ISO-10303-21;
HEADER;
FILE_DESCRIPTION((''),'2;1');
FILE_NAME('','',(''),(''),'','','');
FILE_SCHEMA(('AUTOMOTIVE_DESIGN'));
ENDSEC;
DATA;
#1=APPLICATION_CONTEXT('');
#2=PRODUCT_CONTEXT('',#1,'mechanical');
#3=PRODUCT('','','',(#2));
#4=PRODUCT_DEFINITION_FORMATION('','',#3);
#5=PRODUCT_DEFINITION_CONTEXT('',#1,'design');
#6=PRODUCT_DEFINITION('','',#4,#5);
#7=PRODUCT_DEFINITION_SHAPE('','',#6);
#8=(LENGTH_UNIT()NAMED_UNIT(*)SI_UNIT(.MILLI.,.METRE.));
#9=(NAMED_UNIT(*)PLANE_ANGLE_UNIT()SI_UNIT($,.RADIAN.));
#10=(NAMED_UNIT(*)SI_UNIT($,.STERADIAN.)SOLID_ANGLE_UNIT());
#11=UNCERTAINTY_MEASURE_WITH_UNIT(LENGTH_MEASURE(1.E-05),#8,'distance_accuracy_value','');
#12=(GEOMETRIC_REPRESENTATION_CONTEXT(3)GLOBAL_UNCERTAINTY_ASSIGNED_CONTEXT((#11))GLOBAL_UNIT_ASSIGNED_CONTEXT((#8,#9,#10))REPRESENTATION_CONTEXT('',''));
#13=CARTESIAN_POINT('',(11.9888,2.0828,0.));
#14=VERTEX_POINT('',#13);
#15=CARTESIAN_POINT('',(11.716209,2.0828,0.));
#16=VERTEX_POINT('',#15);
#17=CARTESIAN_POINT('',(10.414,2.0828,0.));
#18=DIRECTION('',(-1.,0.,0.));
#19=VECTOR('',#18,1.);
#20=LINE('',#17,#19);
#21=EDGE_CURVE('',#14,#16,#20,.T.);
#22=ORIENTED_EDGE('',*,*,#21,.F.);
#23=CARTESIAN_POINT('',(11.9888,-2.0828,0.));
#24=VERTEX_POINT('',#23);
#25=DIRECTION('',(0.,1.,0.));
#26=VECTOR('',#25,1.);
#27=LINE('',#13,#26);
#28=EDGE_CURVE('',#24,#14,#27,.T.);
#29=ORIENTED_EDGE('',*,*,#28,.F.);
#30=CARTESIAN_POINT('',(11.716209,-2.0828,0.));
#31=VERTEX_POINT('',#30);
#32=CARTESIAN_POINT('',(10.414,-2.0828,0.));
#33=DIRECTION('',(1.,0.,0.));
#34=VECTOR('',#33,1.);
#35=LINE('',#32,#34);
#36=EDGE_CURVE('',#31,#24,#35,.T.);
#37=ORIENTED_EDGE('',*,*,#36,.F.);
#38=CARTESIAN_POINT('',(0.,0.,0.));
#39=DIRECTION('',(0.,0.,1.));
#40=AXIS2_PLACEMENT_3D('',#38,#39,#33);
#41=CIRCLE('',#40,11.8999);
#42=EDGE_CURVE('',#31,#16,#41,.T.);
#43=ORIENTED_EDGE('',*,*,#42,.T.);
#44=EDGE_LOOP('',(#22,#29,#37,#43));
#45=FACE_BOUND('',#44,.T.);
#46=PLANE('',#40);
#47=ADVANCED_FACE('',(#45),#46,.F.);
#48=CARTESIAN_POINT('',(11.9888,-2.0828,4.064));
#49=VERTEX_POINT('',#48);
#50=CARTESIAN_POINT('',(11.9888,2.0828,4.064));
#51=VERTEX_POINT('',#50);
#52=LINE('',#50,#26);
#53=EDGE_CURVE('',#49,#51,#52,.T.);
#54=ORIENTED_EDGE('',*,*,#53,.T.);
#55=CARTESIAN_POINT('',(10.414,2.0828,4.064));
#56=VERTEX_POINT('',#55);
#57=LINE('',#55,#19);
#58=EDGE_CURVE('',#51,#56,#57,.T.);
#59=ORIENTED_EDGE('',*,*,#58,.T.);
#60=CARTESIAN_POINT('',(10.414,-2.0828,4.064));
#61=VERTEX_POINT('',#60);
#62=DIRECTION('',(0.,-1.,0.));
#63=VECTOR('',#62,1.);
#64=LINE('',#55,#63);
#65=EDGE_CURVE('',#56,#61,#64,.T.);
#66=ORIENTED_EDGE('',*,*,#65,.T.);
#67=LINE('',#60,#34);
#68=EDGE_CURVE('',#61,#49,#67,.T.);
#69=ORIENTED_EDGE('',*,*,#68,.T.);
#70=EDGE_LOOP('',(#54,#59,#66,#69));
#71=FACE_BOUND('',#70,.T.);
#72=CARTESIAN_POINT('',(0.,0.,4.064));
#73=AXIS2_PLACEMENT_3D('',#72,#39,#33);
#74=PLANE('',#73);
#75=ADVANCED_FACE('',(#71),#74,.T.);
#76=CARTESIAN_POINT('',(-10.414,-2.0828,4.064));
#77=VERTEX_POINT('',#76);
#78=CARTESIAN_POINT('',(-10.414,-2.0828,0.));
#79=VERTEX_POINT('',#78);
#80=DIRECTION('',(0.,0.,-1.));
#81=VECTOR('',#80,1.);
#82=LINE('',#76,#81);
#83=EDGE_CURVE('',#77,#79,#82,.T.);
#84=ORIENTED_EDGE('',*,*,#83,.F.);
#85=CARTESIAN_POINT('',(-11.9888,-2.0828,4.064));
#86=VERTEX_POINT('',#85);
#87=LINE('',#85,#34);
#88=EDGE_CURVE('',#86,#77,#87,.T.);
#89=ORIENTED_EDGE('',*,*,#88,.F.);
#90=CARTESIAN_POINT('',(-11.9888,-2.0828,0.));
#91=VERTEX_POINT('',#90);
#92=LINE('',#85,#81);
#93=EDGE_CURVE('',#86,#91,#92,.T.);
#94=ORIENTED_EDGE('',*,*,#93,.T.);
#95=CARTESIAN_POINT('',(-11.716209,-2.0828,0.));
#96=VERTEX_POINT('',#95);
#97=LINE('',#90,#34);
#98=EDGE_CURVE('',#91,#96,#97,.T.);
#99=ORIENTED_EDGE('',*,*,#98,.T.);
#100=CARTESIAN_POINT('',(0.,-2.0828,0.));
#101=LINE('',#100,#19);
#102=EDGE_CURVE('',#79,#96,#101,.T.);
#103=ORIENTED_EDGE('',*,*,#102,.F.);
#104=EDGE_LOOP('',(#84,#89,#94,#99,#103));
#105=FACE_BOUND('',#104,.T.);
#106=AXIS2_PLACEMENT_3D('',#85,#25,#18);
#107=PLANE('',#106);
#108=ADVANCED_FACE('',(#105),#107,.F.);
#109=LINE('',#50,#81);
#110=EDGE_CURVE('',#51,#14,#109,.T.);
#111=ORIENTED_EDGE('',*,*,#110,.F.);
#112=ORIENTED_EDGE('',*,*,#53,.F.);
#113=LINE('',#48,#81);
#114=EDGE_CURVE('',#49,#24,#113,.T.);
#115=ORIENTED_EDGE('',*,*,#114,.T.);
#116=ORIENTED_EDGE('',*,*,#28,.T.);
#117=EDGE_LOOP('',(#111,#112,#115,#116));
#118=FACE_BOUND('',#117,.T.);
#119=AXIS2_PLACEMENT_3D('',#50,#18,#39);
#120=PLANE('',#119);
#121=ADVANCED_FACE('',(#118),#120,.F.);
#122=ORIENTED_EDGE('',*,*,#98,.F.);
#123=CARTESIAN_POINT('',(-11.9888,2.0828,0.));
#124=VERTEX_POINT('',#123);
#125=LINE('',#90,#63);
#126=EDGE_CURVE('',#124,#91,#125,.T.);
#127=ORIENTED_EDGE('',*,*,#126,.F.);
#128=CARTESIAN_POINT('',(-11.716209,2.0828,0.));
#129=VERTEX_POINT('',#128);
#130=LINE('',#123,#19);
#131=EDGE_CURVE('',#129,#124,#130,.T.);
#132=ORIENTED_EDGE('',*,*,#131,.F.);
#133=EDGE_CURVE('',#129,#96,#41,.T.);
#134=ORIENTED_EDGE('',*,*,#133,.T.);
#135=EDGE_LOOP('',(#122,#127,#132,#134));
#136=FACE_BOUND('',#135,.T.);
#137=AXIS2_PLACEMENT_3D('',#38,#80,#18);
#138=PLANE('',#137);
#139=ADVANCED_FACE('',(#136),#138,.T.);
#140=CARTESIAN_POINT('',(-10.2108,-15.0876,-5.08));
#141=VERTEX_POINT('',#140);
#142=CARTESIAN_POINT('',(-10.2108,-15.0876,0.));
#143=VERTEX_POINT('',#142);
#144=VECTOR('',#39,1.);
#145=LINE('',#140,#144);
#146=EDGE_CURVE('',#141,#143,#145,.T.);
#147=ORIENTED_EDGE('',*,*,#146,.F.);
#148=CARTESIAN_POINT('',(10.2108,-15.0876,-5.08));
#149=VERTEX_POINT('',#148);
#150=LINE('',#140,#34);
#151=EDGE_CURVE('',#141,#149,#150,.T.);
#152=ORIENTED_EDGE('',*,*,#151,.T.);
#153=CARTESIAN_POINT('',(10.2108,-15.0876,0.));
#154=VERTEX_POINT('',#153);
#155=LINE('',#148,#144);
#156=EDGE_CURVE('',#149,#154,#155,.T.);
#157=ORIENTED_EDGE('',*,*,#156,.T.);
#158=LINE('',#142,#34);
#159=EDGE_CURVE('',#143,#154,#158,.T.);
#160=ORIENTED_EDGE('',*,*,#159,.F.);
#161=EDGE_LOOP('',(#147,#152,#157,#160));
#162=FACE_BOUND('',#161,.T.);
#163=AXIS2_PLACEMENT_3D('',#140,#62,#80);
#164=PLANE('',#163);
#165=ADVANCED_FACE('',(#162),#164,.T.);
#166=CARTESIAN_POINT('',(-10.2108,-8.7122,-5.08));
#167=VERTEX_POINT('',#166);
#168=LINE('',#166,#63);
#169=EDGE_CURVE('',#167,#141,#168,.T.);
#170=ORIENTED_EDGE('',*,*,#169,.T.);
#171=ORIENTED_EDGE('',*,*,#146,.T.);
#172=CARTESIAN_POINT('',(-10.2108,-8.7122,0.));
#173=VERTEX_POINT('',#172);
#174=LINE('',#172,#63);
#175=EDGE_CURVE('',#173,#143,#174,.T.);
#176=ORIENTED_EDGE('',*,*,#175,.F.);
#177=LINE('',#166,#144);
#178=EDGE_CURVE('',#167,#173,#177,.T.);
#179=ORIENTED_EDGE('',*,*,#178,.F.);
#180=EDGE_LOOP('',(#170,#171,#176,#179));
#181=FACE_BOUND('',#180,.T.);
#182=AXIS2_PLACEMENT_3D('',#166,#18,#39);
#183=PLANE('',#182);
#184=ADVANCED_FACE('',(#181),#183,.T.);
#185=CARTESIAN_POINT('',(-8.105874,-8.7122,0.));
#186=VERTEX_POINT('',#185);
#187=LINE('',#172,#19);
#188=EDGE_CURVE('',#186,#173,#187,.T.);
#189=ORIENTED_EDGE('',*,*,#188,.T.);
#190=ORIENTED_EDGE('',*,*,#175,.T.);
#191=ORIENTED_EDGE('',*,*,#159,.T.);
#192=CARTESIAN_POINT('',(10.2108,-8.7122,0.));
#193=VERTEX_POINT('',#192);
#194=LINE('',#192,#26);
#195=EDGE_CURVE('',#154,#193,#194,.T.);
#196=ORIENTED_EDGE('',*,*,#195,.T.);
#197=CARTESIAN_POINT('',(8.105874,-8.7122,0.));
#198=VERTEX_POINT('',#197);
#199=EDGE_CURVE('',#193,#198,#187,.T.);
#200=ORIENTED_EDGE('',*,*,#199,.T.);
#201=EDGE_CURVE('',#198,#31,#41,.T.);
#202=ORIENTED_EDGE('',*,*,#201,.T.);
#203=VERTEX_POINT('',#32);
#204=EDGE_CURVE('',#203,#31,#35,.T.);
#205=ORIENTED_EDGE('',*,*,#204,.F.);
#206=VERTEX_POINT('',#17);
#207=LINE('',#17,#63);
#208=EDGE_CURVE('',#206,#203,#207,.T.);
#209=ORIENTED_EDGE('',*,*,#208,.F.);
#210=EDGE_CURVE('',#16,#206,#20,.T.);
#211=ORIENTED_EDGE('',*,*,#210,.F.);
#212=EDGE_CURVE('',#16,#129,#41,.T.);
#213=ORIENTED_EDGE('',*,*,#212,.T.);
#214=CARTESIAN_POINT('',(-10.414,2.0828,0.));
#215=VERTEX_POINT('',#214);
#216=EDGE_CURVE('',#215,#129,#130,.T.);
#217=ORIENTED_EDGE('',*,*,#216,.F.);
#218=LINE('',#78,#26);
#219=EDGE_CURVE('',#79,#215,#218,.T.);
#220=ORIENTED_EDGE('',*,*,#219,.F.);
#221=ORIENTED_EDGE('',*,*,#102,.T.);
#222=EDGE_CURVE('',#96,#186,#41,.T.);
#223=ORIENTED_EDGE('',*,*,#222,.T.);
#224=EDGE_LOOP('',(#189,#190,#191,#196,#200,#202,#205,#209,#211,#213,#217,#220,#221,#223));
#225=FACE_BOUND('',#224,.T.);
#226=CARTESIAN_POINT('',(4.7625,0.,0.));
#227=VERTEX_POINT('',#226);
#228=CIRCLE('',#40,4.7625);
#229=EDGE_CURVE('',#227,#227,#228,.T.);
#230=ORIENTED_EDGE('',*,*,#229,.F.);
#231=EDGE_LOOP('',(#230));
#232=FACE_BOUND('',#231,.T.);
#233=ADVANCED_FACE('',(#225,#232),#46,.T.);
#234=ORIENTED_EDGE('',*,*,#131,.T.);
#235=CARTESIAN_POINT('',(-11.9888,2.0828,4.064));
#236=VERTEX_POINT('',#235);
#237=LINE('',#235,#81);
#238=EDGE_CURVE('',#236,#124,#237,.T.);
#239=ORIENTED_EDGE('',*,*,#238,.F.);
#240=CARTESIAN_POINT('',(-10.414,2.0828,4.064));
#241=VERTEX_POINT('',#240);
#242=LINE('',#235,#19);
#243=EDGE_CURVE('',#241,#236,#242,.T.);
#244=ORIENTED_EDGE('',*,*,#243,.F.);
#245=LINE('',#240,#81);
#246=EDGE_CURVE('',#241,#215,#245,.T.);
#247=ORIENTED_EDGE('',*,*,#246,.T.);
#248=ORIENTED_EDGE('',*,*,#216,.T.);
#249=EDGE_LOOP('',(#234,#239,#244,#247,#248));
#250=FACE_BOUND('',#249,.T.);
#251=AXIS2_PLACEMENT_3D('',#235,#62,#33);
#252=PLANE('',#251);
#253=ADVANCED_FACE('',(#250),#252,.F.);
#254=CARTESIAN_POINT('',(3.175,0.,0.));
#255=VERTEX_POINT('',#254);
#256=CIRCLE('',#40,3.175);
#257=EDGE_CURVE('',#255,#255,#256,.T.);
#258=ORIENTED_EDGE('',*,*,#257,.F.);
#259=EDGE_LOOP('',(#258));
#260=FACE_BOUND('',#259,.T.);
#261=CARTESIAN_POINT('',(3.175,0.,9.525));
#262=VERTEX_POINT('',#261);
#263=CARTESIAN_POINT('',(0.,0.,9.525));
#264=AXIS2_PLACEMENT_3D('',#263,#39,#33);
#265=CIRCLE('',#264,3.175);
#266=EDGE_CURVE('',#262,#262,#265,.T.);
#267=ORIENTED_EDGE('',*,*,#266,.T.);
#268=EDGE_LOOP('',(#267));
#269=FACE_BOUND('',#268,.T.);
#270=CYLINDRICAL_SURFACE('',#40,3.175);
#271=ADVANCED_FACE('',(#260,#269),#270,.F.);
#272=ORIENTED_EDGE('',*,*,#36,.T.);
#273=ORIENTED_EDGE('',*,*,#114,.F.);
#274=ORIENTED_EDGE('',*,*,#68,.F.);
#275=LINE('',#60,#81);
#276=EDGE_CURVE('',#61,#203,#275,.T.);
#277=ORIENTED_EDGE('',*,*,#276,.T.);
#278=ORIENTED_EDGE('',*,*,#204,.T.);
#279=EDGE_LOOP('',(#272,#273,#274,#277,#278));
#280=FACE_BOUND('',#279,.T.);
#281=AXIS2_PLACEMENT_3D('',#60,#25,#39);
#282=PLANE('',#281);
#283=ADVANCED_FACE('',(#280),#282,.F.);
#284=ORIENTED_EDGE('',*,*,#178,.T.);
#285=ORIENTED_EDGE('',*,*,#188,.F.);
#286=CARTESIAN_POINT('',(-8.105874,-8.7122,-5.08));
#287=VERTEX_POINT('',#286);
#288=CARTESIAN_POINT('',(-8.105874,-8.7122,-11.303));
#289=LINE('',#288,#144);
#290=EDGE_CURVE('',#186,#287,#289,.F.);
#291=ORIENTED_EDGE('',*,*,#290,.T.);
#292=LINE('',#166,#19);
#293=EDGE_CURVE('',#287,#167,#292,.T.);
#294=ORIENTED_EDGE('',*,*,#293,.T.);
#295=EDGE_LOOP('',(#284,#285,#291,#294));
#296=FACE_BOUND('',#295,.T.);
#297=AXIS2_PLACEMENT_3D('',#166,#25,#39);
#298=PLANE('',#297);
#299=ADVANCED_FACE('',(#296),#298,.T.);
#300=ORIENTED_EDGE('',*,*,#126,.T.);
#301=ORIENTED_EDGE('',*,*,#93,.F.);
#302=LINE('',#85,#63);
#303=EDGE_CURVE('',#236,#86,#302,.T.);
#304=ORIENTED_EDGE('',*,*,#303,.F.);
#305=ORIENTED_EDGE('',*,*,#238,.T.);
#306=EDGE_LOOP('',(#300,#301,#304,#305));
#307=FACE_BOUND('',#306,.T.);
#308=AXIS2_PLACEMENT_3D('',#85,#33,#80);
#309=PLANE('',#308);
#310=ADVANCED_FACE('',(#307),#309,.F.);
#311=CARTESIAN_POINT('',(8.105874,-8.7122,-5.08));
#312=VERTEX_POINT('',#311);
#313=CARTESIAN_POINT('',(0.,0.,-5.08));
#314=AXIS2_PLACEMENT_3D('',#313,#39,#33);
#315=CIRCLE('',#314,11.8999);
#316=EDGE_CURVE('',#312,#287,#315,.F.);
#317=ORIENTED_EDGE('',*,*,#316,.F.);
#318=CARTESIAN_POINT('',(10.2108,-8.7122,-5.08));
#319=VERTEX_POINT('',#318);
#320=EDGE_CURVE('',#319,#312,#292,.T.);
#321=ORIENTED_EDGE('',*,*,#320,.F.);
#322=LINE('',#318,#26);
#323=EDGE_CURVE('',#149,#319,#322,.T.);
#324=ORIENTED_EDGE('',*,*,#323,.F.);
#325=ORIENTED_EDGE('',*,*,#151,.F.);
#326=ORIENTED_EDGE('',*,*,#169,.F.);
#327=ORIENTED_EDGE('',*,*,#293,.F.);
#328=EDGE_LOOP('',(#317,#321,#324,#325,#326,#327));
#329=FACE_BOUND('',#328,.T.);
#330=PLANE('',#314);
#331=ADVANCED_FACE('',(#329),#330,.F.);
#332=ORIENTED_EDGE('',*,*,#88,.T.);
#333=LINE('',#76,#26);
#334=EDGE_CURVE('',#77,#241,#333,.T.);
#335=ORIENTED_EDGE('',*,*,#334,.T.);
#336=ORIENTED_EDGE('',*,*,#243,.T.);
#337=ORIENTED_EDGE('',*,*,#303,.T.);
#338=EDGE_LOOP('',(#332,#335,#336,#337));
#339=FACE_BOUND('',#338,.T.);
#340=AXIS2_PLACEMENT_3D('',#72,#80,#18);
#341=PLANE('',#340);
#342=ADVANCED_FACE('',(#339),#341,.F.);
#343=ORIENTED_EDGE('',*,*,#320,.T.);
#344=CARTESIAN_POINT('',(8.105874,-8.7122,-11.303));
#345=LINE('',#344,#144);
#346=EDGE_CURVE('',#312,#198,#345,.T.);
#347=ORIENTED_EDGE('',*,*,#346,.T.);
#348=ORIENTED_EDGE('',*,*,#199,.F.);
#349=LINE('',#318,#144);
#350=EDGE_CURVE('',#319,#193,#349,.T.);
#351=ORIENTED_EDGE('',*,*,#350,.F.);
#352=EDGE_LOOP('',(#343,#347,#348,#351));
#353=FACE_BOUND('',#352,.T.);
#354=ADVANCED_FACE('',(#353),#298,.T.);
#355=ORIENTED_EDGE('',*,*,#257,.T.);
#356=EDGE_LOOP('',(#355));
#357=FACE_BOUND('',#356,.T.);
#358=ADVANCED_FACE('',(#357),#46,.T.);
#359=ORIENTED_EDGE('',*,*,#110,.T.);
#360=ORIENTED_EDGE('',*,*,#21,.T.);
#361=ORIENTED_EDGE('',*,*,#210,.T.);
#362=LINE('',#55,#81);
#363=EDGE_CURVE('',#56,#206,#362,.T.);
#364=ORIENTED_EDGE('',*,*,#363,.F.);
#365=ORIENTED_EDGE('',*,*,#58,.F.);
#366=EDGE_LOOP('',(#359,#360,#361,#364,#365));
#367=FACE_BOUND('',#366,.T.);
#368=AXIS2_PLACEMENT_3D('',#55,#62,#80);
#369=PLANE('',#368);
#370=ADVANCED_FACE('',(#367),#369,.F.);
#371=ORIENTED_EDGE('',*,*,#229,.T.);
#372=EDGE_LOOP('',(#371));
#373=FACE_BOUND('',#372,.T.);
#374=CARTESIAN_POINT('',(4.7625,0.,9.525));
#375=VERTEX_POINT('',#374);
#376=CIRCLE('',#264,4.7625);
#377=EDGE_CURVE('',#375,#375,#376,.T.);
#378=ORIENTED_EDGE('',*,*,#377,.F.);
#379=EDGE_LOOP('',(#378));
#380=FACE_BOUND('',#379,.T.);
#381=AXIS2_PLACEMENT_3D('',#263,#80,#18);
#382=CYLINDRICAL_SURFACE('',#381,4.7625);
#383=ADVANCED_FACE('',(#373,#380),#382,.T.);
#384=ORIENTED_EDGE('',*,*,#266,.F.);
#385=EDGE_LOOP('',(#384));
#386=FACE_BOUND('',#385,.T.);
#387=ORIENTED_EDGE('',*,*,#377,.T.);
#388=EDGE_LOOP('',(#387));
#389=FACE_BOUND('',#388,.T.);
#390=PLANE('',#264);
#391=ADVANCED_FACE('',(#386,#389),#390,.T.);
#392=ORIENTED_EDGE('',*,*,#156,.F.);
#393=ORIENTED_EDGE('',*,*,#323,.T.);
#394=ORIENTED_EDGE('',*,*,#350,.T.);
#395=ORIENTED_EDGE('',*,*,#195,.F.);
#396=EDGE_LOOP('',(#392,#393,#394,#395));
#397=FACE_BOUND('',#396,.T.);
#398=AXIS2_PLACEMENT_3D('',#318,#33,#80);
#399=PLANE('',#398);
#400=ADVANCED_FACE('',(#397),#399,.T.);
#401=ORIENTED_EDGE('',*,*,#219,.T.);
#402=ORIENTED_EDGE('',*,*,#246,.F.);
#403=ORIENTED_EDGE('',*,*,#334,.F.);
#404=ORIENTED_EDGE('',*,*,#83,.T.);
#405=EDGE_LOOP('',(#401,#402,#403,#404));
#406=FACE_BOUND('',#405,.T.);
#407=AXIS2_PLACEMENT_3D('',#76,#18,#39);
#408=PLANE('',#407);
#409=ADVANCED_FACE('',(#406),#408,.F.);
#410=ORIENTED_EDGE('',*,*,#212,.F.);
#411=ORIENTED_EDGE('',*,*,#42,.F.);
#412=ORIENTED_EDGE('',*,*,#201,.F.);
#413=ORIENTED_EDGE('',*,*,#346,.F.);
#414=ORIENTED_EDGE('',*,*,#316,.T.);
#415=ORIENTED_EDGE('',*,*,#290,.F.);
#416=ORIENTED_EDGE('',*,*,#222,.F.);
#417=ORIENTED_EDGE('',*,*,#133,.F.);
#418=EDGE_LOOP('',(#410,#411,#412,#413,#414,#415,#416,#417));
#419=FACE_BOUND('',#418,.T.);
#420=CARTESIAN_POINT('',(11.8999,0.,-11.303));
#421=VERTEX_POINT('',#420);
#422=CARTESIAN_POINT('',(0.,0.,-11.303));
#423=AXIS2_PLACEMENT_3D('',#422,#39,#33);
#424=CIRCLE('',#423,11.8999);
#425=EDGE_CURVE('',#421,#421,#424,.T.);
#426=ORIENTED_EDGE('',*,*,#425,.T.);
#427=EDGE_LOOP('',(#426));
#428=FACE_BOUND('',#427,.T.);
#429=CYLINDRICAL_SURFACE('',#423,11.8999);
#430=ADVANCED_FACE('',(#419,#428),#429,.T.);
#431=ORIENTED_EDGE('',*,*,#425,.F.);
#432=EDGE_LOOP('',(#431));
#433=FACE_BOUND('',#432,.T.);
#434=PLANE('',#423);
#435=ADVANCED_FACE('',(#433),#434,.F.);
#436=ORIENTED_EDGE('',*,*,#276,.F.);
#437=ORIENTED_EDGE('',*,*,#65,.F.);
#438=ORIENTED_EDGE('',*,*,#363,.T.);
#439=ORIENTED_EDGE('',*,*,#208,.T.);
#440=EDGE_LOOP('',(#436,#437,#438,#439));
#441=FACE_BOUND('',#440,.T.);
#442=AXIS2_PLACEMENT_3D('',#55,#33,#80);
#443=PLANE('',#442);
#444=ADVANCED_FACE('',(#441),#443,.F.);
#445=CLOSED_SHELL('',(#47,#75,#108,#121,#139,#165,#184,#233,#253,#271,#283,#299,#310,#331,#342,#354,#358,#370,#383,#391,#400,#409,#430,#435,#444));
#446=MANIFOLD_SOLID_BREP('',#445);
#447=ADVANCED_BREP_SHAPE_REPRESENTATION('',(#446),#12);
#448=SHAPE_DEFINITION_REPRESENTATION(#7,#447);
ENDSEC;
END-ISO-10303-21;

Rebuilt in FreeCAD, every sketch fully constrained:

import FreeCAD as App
import Part
import Sketcher

V = App.Vector
Q = App.Units.Quantity


def add_polygon(sketch, points):
    """Adds a closed chain of lines whose ends are joined by coincident constraints."""
    first, n = sketch.GeometryCount, len(points)
    for a, b in zip(points, points[1:] + points[:1]):
        sketch.addGeometry(Part.LineSegment(App.Vector(*a, 0), App.Vector(*b, 0)), False)
    for i in range(n):
        sketch.addConstraint(Sketcher.Constraint("Coincident", first + i, 2, first + (i + 1) % n, 1))

doc = App.newDocument("Part")
body = doc.addObject("PartDesign::Body", "Body")

# Sketch on XY plane
sketch1 = doc.addObject("Sketcher::SketchObject", "Sketch")
body.addObject(sketch1)
sketch1.AttachmentSupport = (doc.XY_Plane, [""])
sketch1.MapMode = "FlatFace"
sketch1.addGeometry(Part.Circle(V(0, 0, 0), V(0, 0, 1), 11.8999), False)
sketch1.addConstraint([
    Sketcher.Constraint("Coincident", 0, 3, -1, 1),
    Sketcher.Constraint("Diameter", 0, Q("0.937 in")),
])
pad1 = doc.addObject("PartDesign::Pad", "Pad")
body.addObject(pad1)
pad1.Profile = sketch1
pad1.Length = Q("0.445 in")
pad1.Reversed = True

# Sketch on XY plane
sketch2 = doc.addObject("Sketcher::SketchObject", "Sketch001")
body.addObject(sketch2)
sketch2.AttachmentSupport = (doc.XY_Plane, [""])
sketch2.MapMode = "FlatFace"
sketch2.addGeometry(Part.Circle(V(0, 0, 0), V(0, 0, 1), 4.7625), False)
sketch2.addConstraint([
    Sketcher.Constraint("Coincident", 0, 3, -1, 1),
    Sketcher.Constraint("Diameter", 0, Q("0.375 in")),
])
pad2 = doc.addObject("PartDesign::Pad", "Pad001")
body.addObject(pad2)
pad2.Profile = sketch2
pad2.Length = Q("0.375 in")

# Sketch on XY plane
sketch3 = doc.addObject("Sketcher::SketchObject", "Sketch002")
body.addObject(sketch3)
sketch3.AttachmentSupport = (doc.XY_Plane, [""])
sketch3.MapMode = "FlatFace"
add_polygon(sketch3, [(-11.9888, 2.0828), (-11.9888, -2.0828), (-10.414, -2.0828), (-10.414, 2.0828)])  # lines 0-3
add_polygon(sketch3, [(10.414, 2.0828), (10.414, -2.0828), (11.9888, -2.0828), (11.9888, 2.0828)])  # lines 4-7
sketch3.addConstraint([
    Sketcher.Constraint("Vertical", 0),
    Sketcher.Constraint("Horizontal", 1),
    Sketcher.Constraint("Vertical", 2),
    Sketcher.Constraint("Horizontal", 3),
    Sketcher.Constraint("Vertical", 4),
    Sketcher.Constraint("Horizontal", 5),
    Sketcher.Constraint("Vertical", 6),
    Sketcher.Constraint("Horizontal", 7),
    Sketcher.Constraint("Symmetric", 2, 2, 4, 2, -1, 1),
    Sketcher.Constraint("Symmetric", 0, 2, 6, 2, -1, 1),
    Sketcher.Constraint("Horizontal", 1, 2, 4, 2),
    Sketcher.Constraint("DistanceX", 1, 1, 1, 2, Q("0.062 in")),
    Sketcher.Constraint("DistanceY", 0, 2, 0, 1, Q("0.164 in")),
    Sketcher.Constraint("DistanceX", 1, 2, -1, 1, Q("0.41 in")),
])
pad3 = doc.addObject("PartDesign::Pad", "Pad002")
body.addObject(pad3)
pad3.Profile = sketch3
pad3.Length = Q("0.16 in")

# Sketch on XY plane
sketch4 = doc.addObject("Sketcher::SketchObject", "Sketch003")
body.addObject(sketch4)
sketch4.AttachmentSupport = (doc.XY_Plane, [""])
sketch4.MapMode = "FlatFace"
sketch4.AttachmentOffset = App.Placement(V(0, 0, 0.375 * 25.4), App.Rotation())
sketch4.addGeometry(Part.Circle(V(0, 0, 0), V(0, 0, 1), 3.175), False)
sketch4.addConstraint([
    Sketcher.Constraint("Coincident", 0, 3, -1, 1),
    Sketcher.Constraint("Diameter", 0, Q("0.25 in")),
])
pocket1 = doc.addObject("PartDesign::Pocket", "Pocket")
body.addObject(pocket1)
pocket1.Profile = sketch4
pocket1.Length = Q("0.375 in")

# Sketch on XY plane
sketch5 = doc.addObject("Sketcher::SketchObject", "Sketch004")
body.addObject(sketch5)
sketch5.AttachmentSupport = (doc.XY_Plane, [""])
sketch5.MapMode = "FlatFace"
add_polygon(sketch5, [(-10.2108, -8.7122), (-10.2108, -15.0876), (10.2108, -15.0876), (10.2108, -8.7122)])  # lines 0-3
sketch5.addConstraint([
    Sketcher.Constraint("Vertical", 0),
    Sketcher.Constraint("Horizontal", 1),
    Sketcher.Constraint("Vertical", 2),
    Sketcher.Constraint("Horizontal", 3),
    Sketcher.Constraint("DistanceX", 1, 1, 1, 2, Q("0.804 in")),
    Sketcher.Constraint("DistanceY", 0, 2, 0, 1, Q("0.251 in")),
    Sketcher.Constraint("DistanceX", 0, 2, -1, 1, Q("0.402 in")),
    Sketcher.Constraint("DistanceY", 0, 2, -1, 1, Q("0.594 in")),
])
pad4 = doc.addObject("PartDesign::Pad", "Pad003")
body.addObject(pad4)
pad4.Profile = sketch5
pad4.Length = Q("0.2 in")
pad4.Reversed = True

doc.recompute()
